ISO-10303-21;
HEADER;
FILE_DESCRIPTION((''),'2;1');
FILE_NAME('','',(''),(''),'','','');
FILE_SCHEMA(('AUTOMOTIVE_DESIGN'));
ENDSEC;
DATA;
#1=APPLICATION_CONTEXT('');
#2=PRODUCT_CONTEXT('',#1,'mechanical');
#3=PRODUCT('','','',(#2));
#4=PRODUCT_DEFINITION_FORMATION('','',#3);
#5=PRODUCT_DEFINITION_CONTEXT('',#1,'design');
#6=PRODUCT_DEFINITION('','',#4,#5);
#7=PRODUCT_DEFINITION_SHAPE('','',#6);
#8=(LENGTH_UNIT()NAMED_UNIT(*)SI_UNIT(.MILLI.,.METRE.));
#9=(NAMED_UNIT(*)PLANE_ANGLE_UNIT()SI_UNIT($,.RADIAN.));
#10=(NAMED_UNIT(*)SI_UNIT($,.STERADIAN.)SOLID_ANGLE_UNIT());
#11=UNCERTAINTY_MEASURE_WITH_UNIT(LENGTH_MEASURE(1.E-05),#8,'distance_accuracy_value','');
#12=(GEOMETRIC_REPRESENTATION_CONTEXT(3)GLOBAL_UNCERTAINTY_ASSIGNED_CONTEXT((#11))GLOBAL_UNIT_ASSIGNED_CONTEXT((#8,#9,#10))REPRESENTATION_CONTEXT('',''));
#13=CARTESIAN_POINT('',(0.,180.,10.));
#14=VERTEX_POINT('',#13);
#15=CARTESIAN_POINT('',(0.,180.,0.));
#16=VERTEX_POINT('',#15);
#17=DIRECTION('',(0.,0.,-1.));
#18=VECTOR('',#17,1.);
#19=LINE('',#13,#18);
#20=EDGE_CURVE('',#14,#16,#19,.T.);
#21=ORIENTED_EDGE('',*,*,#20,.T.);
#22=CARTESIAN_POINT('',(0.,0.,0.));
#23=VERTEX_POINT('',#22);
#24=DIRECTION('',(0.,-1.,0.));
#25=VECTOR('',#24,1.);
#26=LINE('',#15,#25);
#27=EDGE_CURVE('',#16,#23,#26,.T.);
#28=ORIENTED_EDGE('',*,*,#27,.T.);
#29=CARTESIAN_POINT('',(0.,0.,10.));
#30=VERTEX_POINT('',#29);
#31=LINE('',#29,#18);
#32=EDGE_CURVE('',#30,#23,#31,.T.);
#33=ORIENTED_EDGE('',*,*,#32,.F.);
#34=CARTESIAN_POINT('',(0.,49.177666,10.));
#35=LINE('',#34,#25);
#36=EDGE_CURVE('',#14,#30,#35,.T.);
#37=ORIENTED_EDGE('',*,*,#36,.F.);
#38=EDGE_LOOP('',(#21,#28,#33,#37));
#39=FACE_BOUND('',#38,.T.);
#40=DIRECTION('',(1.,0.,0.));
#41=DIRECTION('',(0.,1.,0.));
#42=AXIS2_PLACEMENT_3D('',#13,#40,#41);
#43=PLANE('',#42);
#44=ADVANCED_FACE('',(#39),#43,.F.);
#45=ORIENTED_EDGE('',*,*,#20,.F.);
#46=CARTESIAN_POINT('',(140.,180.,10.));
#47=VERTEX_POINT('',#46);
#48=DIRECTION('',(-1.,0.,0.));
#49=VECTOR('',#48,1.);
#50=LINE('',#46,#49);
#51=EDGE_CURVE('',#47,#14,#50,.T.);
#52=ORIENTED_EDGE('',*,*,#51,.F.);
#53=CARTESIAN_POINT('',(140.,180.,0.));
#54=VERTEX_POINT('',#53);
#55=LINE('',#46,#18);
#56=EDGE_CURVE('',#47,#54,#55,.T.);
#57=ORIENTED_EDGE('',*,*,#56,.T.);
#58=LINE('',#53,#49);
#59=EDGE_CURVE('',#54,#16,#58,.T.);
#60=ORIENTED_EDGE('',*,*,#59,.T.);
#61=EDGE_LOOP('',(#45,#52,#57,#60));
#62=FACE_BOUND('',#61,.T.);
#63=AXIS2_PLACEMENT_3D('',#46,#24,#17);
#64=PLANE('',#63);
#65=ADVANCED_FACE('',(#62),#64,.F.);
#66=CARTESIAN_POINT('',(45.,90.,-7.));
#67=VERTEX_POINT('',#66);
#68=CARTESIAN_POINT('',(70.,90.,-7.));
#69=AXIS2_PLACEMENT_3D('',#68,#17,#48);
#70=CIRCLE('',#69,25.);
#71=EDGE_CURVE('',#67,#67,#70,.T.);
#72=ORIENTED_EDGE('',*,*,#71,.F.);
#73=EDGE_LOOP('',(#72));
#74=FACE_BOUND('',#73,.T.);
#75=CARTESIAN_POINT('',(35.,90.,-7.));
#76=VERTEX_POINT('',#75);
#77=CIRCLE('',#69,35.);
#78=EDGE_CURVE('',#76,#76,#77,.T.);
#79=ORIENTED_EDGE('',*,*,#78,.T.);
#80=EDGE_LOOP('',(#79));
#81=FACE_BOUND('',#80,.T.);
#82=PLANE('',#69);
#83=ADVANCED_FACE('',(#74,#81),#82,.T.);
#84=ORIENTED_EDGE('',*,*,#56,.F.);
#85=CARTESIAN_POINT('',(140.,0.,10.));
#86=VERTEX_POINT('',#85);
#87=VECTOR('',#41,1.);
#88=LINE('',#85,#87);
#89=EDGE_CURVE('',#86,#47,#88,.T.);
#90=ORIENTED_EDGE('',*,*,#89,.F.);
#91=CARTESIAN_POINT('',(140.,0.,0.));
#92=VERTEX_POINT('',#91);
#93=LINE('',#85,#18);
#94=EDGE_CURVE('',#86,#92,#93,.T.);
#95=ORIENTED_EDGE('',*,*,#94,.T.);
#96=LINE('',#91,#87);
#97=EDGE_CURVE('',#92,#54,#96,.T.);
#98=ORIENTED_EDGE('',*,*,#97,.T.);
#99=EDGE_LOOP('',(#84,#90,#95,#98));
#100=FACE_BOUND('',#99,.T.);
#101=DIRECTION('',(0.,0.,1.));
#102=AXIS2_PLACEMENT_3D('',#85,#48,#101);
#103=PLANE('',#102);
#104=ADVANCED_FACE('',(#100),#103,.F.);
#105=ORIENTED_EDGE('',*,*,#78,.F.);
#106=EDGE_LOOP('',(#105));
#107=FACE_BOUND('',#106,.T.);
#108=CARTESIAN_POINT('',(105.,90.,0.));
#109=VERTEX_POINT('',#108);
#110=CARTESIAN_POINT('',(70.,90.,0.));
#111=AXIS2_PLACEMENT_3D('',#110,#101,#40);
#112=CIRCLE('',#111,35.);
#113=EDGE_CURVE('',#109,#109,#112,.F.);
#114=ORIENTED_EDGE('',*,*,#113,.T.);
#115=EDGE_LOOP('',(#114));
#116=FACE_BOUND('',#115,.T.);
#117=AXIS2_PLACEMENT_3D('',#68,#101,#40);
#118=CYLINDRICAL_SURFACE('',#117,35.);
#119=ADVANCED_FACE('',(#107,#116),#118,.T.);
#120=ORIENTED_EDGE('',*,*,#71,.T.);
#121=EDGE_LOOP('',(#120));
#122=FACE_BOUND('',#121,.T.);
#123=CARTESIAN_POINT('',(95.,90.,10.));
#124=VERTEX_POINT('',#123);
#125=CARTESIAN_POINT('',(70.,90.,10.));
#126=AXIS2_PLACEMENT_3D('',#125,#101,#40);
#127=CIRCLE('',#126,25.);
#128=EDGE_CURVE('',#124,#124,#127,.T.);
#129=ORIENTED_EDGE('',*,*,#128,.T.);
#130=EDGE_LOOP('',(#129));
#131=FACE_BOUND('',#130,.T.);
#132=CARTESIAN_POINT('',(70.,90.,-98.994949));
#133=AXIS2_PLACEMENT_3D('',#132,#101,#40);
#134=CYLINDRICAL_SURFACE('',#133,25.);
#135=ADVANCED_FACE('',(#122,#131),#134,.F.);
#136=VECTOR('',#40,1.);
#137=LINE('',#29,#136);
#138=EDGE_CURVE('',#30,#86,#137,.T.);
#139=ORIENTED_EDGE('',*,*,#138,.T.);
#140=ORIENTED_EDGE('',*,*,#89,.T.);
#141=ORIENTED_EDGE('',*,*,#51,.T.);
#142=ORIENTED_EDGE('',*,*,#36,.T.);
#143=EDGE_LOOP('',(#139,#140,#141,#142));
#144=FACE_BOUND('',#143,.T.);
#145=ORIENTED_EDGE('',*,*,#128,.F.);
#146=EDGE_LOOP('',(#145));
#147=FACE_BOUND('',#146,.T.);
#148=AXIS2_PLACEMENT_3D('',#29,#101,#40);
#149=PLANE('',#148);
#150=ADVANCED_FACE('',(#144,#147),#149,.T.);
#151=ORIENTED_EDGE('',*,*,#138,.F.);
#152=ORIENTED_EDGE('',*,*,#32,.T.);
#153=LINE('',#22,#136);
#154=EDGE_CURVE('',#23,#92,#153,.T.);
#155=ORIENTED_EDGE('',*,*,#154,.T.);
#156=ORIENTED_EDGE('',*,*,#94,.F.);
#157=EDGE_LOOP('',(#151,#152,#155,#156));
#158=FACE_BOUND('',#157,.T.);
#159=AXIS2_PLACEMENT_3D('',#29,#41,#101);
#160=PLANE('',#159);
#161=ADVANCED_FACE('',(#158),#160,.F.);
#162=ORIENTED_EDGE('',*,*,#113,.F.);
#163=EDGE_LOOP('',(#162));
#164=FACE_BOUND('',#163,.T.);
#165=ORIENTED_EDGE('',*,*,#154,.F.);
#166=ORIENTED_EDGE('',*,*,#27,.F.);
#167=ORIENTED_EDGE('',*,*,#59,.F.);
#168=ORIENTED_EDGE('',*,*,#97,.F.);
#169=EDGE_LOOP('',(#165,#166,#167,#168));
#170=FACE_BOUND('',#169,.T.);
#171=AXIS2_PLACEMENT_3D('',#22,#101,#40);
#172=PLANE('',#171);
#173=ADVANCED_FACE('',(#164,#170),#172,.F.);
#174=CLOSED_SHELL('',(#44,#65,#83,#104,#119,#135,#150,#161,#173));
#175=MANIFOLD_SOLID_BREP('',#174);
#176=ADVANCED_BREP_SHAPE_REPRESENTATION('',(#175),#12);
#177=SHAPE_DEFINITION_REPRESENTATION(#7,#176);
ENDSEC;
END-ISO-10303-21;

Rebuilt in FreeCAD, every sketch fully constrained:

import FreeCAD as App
import Part
import Sketcher
Q = App.Units.Quantity


def add_polygon(sketch, points):
    """Adds a closed chain of lines whose ends are joined by coincident constraints."""
    first, n = sketch.GeometryCount, len(points)
    for a, b in zip(points, points[1:] + points[:1]):
        sketch.addGeometry(Part.LineSegment(App.Vector(*a, 0), App.Vector(*b, 0)), False)
    for i in range(n):
        sketch.addConstraint(Sketcher.Constraint("Coincident", first + i, 2, first + (i + 1) % n, 1))

doc = App.newDocument("Part")
params = doc.addObject("Spreadsheet::Sheet", "Params")
for row, (alias, value) in enumerate([
    ("sketch1_diameter", "70 mm"),
    ("sketch1_width", "140 mm"),
    ("sketch1_height", "180 mm"),
    ("pad1_length", "10 mm"),
    ("sketch2_diameter", "70 mm"),
    ("sketch2_diameter2", "50 mm"),
    ("pad2_length", "7 mm"),
    ("sketch3_diameter", "70 mm"),
    ("sketch3_diameter2", "50 mm"),
    ("pad3_length", "10 mm"),
], start=1):
    params.set(f"A{row}", alias)
    params.set(f"B{row}", "=" + value)
    params.setAlias(f"B{row}", alias)

body = doc.addObject("PartDesign::Body", "Body")

sketch1 = body.newObject("Sketcher::SketchObject", "Sketch")
sketch1.AttachmentSupport = (doc.getObject("XY_Plane"), [""])
sketch1.MapMode = "FlatFace"
add_polygon(sketch1, [(0, 0), (140, 0), (140, 180), (0, 180)])
sketch1.addGeometry(Part.Circle(App.Vector(70, 90, 0), App.Vector(0, 0, 1), 35), False)
sketch1.addConstraint(Sketcher.Constraint("Horizontal", 0))
sketch1.addConstraint(Sketcher.Constraint("Vertical", 1))
sketch1.addConstraint(Sketcher.Constraint("Horizontal", 2))
sketch1.addConstraint(Sketcher.Constraint("Vertical", 3))
sketch1.addConstraint(Sketcher.Constraint("Coincident", 3, 2, -1, 1))
sketch1.addConstraint(Sketcher.Constraint("Diameter", 4, Q("70 mm")))
sketch1.addConstraint(Sketcher.Constraint("DistanceX", 0, 1, 0, 2, Q("140 mm")))
sketch1.addConstraint(Sketcher.Constraint("DistanceY", 1, 1, 1, 2, Q("180 mm")))
sketch1.addConstraint(Sketcher.Constraint("DistanceX", -1, 1, 4, 3, Q("70 mm")))
sketch1.addConstraint(Sketcher.Constraint("DistanceY", -1, 1, 4, 3, Q("90 mm")))
sketch1.setExpression("Constraints[9]", "Params.sketch1_diameter")
sketch1.setExpression("Constraints[10]", "Params.sketch1_width")
sketch1.setExpression("Constraints[11]", "Params.sketch1_height")
pad1 = body.newObject("PartDesign::Pad", "Pad")
pad1.Profile = sketch1
pad1.setExpression("Length", "Params.pad1_length")
body2 = doc.addObject("PartDesign::Body", "Body001")

sketch2 = body2.newObject("Sketcher::SketchObject", "Sketch001")
sketch2.AttachmentSupport = (doc.getObject("XY_Plane001"), [""])
sketch2.MapMode = "FlatFace"
sketch2.addGeometry(Part.Circle(App.Vector(70, 90, 0), App.Vector(0, 0, 1), 35), False)
sketch2.addGeometry(Part.Circle(App.Vector(70, 90, 0), App.Vector(0, 0, 1), 25), False)
sketch2.addConstraint(Sketcher.Constraint("Coincident", 1, 3, 0, 3))
sketch2.addConstraint(Sketcher.Constraint("Diameter", 0, Q("70 mm")))
sketch2.addConstraint(Sketcher.Constraint("Diameter", 1, Q("50 mm")))
sketch2.addConstraint(Sketcher.Constraint("DistanceX", -1, 1, 0, 3, Q("70 mm")))
sketch2.addConstraint(Sketcher.Constraint("DistanceY", -1, 1, 0, 3, Q("90 mm")))
sketch2.setExpression("Constraints[1]", "Params.sketch2_diameter")
sketch2.setExpression("Constraints[2]", "Params.sketch2_diameter2")
pad2 = body2.newObject("PartDesign::Pad", "Pad001")
pad2.Profile = sketch2
pad2.setExpression("Length", "Params.pad2_length")
pad2.Reversed = True
body.AllowCompound = True
doc.recompute()

boolean = body.newObject("PartDesign::Boolean", "Boolean")
boolean.Type = "Fuse"
boolean.addObjects([body2])

sketch3 = body.newObject("Sketcher::SketchObject", "Sketch002")
sketch3.AttachmentSupport = (doc.getObject("XY_Plane"), [""])
sketch3.MapMode = "FlatFace"
sketch3.addGeometry(Part.Circle(App.Vector(70, 90, 0), App.Vector(0, 0, 1), 35), False)
sketch3.addGeometry(Part.Circle(App.Vector(70, 90, 0), App.Vector(0, 0, 1), 25), False)
sketch3.addConstraint(Sketcher.Constraint("Coincident", 1, 3, 0, 3))
sketch3.addConstraint(Sketcher.Constraint("Diameter", 0, Q("70 mm")))
sketch3.addConstraint(Sketcher.Constraint("Diameter", 1, Q("50 mm")))
sketch3.addConstraint(Sketcher.Constraint("DistanceX", -1, 1, 0, 3, Q("70 mm")))
sketch3.addConstraint(Sketcher.Constraint("DistanceY", -1, 1, 0, 3, Q("90 mm")))
sketch3.setExpression("Constraints[1]", "Params.sketch3_diameter")
sketch3.setExpression("Constraints[2]", "Params.sketch3_diameter2")
pad3 = body.newObject("PartDesign::Pad", "Pad002")
pad3.Profile = sketch3
pad3.setExpression("Length", "Params.pad3_length")

doc.recompute()
